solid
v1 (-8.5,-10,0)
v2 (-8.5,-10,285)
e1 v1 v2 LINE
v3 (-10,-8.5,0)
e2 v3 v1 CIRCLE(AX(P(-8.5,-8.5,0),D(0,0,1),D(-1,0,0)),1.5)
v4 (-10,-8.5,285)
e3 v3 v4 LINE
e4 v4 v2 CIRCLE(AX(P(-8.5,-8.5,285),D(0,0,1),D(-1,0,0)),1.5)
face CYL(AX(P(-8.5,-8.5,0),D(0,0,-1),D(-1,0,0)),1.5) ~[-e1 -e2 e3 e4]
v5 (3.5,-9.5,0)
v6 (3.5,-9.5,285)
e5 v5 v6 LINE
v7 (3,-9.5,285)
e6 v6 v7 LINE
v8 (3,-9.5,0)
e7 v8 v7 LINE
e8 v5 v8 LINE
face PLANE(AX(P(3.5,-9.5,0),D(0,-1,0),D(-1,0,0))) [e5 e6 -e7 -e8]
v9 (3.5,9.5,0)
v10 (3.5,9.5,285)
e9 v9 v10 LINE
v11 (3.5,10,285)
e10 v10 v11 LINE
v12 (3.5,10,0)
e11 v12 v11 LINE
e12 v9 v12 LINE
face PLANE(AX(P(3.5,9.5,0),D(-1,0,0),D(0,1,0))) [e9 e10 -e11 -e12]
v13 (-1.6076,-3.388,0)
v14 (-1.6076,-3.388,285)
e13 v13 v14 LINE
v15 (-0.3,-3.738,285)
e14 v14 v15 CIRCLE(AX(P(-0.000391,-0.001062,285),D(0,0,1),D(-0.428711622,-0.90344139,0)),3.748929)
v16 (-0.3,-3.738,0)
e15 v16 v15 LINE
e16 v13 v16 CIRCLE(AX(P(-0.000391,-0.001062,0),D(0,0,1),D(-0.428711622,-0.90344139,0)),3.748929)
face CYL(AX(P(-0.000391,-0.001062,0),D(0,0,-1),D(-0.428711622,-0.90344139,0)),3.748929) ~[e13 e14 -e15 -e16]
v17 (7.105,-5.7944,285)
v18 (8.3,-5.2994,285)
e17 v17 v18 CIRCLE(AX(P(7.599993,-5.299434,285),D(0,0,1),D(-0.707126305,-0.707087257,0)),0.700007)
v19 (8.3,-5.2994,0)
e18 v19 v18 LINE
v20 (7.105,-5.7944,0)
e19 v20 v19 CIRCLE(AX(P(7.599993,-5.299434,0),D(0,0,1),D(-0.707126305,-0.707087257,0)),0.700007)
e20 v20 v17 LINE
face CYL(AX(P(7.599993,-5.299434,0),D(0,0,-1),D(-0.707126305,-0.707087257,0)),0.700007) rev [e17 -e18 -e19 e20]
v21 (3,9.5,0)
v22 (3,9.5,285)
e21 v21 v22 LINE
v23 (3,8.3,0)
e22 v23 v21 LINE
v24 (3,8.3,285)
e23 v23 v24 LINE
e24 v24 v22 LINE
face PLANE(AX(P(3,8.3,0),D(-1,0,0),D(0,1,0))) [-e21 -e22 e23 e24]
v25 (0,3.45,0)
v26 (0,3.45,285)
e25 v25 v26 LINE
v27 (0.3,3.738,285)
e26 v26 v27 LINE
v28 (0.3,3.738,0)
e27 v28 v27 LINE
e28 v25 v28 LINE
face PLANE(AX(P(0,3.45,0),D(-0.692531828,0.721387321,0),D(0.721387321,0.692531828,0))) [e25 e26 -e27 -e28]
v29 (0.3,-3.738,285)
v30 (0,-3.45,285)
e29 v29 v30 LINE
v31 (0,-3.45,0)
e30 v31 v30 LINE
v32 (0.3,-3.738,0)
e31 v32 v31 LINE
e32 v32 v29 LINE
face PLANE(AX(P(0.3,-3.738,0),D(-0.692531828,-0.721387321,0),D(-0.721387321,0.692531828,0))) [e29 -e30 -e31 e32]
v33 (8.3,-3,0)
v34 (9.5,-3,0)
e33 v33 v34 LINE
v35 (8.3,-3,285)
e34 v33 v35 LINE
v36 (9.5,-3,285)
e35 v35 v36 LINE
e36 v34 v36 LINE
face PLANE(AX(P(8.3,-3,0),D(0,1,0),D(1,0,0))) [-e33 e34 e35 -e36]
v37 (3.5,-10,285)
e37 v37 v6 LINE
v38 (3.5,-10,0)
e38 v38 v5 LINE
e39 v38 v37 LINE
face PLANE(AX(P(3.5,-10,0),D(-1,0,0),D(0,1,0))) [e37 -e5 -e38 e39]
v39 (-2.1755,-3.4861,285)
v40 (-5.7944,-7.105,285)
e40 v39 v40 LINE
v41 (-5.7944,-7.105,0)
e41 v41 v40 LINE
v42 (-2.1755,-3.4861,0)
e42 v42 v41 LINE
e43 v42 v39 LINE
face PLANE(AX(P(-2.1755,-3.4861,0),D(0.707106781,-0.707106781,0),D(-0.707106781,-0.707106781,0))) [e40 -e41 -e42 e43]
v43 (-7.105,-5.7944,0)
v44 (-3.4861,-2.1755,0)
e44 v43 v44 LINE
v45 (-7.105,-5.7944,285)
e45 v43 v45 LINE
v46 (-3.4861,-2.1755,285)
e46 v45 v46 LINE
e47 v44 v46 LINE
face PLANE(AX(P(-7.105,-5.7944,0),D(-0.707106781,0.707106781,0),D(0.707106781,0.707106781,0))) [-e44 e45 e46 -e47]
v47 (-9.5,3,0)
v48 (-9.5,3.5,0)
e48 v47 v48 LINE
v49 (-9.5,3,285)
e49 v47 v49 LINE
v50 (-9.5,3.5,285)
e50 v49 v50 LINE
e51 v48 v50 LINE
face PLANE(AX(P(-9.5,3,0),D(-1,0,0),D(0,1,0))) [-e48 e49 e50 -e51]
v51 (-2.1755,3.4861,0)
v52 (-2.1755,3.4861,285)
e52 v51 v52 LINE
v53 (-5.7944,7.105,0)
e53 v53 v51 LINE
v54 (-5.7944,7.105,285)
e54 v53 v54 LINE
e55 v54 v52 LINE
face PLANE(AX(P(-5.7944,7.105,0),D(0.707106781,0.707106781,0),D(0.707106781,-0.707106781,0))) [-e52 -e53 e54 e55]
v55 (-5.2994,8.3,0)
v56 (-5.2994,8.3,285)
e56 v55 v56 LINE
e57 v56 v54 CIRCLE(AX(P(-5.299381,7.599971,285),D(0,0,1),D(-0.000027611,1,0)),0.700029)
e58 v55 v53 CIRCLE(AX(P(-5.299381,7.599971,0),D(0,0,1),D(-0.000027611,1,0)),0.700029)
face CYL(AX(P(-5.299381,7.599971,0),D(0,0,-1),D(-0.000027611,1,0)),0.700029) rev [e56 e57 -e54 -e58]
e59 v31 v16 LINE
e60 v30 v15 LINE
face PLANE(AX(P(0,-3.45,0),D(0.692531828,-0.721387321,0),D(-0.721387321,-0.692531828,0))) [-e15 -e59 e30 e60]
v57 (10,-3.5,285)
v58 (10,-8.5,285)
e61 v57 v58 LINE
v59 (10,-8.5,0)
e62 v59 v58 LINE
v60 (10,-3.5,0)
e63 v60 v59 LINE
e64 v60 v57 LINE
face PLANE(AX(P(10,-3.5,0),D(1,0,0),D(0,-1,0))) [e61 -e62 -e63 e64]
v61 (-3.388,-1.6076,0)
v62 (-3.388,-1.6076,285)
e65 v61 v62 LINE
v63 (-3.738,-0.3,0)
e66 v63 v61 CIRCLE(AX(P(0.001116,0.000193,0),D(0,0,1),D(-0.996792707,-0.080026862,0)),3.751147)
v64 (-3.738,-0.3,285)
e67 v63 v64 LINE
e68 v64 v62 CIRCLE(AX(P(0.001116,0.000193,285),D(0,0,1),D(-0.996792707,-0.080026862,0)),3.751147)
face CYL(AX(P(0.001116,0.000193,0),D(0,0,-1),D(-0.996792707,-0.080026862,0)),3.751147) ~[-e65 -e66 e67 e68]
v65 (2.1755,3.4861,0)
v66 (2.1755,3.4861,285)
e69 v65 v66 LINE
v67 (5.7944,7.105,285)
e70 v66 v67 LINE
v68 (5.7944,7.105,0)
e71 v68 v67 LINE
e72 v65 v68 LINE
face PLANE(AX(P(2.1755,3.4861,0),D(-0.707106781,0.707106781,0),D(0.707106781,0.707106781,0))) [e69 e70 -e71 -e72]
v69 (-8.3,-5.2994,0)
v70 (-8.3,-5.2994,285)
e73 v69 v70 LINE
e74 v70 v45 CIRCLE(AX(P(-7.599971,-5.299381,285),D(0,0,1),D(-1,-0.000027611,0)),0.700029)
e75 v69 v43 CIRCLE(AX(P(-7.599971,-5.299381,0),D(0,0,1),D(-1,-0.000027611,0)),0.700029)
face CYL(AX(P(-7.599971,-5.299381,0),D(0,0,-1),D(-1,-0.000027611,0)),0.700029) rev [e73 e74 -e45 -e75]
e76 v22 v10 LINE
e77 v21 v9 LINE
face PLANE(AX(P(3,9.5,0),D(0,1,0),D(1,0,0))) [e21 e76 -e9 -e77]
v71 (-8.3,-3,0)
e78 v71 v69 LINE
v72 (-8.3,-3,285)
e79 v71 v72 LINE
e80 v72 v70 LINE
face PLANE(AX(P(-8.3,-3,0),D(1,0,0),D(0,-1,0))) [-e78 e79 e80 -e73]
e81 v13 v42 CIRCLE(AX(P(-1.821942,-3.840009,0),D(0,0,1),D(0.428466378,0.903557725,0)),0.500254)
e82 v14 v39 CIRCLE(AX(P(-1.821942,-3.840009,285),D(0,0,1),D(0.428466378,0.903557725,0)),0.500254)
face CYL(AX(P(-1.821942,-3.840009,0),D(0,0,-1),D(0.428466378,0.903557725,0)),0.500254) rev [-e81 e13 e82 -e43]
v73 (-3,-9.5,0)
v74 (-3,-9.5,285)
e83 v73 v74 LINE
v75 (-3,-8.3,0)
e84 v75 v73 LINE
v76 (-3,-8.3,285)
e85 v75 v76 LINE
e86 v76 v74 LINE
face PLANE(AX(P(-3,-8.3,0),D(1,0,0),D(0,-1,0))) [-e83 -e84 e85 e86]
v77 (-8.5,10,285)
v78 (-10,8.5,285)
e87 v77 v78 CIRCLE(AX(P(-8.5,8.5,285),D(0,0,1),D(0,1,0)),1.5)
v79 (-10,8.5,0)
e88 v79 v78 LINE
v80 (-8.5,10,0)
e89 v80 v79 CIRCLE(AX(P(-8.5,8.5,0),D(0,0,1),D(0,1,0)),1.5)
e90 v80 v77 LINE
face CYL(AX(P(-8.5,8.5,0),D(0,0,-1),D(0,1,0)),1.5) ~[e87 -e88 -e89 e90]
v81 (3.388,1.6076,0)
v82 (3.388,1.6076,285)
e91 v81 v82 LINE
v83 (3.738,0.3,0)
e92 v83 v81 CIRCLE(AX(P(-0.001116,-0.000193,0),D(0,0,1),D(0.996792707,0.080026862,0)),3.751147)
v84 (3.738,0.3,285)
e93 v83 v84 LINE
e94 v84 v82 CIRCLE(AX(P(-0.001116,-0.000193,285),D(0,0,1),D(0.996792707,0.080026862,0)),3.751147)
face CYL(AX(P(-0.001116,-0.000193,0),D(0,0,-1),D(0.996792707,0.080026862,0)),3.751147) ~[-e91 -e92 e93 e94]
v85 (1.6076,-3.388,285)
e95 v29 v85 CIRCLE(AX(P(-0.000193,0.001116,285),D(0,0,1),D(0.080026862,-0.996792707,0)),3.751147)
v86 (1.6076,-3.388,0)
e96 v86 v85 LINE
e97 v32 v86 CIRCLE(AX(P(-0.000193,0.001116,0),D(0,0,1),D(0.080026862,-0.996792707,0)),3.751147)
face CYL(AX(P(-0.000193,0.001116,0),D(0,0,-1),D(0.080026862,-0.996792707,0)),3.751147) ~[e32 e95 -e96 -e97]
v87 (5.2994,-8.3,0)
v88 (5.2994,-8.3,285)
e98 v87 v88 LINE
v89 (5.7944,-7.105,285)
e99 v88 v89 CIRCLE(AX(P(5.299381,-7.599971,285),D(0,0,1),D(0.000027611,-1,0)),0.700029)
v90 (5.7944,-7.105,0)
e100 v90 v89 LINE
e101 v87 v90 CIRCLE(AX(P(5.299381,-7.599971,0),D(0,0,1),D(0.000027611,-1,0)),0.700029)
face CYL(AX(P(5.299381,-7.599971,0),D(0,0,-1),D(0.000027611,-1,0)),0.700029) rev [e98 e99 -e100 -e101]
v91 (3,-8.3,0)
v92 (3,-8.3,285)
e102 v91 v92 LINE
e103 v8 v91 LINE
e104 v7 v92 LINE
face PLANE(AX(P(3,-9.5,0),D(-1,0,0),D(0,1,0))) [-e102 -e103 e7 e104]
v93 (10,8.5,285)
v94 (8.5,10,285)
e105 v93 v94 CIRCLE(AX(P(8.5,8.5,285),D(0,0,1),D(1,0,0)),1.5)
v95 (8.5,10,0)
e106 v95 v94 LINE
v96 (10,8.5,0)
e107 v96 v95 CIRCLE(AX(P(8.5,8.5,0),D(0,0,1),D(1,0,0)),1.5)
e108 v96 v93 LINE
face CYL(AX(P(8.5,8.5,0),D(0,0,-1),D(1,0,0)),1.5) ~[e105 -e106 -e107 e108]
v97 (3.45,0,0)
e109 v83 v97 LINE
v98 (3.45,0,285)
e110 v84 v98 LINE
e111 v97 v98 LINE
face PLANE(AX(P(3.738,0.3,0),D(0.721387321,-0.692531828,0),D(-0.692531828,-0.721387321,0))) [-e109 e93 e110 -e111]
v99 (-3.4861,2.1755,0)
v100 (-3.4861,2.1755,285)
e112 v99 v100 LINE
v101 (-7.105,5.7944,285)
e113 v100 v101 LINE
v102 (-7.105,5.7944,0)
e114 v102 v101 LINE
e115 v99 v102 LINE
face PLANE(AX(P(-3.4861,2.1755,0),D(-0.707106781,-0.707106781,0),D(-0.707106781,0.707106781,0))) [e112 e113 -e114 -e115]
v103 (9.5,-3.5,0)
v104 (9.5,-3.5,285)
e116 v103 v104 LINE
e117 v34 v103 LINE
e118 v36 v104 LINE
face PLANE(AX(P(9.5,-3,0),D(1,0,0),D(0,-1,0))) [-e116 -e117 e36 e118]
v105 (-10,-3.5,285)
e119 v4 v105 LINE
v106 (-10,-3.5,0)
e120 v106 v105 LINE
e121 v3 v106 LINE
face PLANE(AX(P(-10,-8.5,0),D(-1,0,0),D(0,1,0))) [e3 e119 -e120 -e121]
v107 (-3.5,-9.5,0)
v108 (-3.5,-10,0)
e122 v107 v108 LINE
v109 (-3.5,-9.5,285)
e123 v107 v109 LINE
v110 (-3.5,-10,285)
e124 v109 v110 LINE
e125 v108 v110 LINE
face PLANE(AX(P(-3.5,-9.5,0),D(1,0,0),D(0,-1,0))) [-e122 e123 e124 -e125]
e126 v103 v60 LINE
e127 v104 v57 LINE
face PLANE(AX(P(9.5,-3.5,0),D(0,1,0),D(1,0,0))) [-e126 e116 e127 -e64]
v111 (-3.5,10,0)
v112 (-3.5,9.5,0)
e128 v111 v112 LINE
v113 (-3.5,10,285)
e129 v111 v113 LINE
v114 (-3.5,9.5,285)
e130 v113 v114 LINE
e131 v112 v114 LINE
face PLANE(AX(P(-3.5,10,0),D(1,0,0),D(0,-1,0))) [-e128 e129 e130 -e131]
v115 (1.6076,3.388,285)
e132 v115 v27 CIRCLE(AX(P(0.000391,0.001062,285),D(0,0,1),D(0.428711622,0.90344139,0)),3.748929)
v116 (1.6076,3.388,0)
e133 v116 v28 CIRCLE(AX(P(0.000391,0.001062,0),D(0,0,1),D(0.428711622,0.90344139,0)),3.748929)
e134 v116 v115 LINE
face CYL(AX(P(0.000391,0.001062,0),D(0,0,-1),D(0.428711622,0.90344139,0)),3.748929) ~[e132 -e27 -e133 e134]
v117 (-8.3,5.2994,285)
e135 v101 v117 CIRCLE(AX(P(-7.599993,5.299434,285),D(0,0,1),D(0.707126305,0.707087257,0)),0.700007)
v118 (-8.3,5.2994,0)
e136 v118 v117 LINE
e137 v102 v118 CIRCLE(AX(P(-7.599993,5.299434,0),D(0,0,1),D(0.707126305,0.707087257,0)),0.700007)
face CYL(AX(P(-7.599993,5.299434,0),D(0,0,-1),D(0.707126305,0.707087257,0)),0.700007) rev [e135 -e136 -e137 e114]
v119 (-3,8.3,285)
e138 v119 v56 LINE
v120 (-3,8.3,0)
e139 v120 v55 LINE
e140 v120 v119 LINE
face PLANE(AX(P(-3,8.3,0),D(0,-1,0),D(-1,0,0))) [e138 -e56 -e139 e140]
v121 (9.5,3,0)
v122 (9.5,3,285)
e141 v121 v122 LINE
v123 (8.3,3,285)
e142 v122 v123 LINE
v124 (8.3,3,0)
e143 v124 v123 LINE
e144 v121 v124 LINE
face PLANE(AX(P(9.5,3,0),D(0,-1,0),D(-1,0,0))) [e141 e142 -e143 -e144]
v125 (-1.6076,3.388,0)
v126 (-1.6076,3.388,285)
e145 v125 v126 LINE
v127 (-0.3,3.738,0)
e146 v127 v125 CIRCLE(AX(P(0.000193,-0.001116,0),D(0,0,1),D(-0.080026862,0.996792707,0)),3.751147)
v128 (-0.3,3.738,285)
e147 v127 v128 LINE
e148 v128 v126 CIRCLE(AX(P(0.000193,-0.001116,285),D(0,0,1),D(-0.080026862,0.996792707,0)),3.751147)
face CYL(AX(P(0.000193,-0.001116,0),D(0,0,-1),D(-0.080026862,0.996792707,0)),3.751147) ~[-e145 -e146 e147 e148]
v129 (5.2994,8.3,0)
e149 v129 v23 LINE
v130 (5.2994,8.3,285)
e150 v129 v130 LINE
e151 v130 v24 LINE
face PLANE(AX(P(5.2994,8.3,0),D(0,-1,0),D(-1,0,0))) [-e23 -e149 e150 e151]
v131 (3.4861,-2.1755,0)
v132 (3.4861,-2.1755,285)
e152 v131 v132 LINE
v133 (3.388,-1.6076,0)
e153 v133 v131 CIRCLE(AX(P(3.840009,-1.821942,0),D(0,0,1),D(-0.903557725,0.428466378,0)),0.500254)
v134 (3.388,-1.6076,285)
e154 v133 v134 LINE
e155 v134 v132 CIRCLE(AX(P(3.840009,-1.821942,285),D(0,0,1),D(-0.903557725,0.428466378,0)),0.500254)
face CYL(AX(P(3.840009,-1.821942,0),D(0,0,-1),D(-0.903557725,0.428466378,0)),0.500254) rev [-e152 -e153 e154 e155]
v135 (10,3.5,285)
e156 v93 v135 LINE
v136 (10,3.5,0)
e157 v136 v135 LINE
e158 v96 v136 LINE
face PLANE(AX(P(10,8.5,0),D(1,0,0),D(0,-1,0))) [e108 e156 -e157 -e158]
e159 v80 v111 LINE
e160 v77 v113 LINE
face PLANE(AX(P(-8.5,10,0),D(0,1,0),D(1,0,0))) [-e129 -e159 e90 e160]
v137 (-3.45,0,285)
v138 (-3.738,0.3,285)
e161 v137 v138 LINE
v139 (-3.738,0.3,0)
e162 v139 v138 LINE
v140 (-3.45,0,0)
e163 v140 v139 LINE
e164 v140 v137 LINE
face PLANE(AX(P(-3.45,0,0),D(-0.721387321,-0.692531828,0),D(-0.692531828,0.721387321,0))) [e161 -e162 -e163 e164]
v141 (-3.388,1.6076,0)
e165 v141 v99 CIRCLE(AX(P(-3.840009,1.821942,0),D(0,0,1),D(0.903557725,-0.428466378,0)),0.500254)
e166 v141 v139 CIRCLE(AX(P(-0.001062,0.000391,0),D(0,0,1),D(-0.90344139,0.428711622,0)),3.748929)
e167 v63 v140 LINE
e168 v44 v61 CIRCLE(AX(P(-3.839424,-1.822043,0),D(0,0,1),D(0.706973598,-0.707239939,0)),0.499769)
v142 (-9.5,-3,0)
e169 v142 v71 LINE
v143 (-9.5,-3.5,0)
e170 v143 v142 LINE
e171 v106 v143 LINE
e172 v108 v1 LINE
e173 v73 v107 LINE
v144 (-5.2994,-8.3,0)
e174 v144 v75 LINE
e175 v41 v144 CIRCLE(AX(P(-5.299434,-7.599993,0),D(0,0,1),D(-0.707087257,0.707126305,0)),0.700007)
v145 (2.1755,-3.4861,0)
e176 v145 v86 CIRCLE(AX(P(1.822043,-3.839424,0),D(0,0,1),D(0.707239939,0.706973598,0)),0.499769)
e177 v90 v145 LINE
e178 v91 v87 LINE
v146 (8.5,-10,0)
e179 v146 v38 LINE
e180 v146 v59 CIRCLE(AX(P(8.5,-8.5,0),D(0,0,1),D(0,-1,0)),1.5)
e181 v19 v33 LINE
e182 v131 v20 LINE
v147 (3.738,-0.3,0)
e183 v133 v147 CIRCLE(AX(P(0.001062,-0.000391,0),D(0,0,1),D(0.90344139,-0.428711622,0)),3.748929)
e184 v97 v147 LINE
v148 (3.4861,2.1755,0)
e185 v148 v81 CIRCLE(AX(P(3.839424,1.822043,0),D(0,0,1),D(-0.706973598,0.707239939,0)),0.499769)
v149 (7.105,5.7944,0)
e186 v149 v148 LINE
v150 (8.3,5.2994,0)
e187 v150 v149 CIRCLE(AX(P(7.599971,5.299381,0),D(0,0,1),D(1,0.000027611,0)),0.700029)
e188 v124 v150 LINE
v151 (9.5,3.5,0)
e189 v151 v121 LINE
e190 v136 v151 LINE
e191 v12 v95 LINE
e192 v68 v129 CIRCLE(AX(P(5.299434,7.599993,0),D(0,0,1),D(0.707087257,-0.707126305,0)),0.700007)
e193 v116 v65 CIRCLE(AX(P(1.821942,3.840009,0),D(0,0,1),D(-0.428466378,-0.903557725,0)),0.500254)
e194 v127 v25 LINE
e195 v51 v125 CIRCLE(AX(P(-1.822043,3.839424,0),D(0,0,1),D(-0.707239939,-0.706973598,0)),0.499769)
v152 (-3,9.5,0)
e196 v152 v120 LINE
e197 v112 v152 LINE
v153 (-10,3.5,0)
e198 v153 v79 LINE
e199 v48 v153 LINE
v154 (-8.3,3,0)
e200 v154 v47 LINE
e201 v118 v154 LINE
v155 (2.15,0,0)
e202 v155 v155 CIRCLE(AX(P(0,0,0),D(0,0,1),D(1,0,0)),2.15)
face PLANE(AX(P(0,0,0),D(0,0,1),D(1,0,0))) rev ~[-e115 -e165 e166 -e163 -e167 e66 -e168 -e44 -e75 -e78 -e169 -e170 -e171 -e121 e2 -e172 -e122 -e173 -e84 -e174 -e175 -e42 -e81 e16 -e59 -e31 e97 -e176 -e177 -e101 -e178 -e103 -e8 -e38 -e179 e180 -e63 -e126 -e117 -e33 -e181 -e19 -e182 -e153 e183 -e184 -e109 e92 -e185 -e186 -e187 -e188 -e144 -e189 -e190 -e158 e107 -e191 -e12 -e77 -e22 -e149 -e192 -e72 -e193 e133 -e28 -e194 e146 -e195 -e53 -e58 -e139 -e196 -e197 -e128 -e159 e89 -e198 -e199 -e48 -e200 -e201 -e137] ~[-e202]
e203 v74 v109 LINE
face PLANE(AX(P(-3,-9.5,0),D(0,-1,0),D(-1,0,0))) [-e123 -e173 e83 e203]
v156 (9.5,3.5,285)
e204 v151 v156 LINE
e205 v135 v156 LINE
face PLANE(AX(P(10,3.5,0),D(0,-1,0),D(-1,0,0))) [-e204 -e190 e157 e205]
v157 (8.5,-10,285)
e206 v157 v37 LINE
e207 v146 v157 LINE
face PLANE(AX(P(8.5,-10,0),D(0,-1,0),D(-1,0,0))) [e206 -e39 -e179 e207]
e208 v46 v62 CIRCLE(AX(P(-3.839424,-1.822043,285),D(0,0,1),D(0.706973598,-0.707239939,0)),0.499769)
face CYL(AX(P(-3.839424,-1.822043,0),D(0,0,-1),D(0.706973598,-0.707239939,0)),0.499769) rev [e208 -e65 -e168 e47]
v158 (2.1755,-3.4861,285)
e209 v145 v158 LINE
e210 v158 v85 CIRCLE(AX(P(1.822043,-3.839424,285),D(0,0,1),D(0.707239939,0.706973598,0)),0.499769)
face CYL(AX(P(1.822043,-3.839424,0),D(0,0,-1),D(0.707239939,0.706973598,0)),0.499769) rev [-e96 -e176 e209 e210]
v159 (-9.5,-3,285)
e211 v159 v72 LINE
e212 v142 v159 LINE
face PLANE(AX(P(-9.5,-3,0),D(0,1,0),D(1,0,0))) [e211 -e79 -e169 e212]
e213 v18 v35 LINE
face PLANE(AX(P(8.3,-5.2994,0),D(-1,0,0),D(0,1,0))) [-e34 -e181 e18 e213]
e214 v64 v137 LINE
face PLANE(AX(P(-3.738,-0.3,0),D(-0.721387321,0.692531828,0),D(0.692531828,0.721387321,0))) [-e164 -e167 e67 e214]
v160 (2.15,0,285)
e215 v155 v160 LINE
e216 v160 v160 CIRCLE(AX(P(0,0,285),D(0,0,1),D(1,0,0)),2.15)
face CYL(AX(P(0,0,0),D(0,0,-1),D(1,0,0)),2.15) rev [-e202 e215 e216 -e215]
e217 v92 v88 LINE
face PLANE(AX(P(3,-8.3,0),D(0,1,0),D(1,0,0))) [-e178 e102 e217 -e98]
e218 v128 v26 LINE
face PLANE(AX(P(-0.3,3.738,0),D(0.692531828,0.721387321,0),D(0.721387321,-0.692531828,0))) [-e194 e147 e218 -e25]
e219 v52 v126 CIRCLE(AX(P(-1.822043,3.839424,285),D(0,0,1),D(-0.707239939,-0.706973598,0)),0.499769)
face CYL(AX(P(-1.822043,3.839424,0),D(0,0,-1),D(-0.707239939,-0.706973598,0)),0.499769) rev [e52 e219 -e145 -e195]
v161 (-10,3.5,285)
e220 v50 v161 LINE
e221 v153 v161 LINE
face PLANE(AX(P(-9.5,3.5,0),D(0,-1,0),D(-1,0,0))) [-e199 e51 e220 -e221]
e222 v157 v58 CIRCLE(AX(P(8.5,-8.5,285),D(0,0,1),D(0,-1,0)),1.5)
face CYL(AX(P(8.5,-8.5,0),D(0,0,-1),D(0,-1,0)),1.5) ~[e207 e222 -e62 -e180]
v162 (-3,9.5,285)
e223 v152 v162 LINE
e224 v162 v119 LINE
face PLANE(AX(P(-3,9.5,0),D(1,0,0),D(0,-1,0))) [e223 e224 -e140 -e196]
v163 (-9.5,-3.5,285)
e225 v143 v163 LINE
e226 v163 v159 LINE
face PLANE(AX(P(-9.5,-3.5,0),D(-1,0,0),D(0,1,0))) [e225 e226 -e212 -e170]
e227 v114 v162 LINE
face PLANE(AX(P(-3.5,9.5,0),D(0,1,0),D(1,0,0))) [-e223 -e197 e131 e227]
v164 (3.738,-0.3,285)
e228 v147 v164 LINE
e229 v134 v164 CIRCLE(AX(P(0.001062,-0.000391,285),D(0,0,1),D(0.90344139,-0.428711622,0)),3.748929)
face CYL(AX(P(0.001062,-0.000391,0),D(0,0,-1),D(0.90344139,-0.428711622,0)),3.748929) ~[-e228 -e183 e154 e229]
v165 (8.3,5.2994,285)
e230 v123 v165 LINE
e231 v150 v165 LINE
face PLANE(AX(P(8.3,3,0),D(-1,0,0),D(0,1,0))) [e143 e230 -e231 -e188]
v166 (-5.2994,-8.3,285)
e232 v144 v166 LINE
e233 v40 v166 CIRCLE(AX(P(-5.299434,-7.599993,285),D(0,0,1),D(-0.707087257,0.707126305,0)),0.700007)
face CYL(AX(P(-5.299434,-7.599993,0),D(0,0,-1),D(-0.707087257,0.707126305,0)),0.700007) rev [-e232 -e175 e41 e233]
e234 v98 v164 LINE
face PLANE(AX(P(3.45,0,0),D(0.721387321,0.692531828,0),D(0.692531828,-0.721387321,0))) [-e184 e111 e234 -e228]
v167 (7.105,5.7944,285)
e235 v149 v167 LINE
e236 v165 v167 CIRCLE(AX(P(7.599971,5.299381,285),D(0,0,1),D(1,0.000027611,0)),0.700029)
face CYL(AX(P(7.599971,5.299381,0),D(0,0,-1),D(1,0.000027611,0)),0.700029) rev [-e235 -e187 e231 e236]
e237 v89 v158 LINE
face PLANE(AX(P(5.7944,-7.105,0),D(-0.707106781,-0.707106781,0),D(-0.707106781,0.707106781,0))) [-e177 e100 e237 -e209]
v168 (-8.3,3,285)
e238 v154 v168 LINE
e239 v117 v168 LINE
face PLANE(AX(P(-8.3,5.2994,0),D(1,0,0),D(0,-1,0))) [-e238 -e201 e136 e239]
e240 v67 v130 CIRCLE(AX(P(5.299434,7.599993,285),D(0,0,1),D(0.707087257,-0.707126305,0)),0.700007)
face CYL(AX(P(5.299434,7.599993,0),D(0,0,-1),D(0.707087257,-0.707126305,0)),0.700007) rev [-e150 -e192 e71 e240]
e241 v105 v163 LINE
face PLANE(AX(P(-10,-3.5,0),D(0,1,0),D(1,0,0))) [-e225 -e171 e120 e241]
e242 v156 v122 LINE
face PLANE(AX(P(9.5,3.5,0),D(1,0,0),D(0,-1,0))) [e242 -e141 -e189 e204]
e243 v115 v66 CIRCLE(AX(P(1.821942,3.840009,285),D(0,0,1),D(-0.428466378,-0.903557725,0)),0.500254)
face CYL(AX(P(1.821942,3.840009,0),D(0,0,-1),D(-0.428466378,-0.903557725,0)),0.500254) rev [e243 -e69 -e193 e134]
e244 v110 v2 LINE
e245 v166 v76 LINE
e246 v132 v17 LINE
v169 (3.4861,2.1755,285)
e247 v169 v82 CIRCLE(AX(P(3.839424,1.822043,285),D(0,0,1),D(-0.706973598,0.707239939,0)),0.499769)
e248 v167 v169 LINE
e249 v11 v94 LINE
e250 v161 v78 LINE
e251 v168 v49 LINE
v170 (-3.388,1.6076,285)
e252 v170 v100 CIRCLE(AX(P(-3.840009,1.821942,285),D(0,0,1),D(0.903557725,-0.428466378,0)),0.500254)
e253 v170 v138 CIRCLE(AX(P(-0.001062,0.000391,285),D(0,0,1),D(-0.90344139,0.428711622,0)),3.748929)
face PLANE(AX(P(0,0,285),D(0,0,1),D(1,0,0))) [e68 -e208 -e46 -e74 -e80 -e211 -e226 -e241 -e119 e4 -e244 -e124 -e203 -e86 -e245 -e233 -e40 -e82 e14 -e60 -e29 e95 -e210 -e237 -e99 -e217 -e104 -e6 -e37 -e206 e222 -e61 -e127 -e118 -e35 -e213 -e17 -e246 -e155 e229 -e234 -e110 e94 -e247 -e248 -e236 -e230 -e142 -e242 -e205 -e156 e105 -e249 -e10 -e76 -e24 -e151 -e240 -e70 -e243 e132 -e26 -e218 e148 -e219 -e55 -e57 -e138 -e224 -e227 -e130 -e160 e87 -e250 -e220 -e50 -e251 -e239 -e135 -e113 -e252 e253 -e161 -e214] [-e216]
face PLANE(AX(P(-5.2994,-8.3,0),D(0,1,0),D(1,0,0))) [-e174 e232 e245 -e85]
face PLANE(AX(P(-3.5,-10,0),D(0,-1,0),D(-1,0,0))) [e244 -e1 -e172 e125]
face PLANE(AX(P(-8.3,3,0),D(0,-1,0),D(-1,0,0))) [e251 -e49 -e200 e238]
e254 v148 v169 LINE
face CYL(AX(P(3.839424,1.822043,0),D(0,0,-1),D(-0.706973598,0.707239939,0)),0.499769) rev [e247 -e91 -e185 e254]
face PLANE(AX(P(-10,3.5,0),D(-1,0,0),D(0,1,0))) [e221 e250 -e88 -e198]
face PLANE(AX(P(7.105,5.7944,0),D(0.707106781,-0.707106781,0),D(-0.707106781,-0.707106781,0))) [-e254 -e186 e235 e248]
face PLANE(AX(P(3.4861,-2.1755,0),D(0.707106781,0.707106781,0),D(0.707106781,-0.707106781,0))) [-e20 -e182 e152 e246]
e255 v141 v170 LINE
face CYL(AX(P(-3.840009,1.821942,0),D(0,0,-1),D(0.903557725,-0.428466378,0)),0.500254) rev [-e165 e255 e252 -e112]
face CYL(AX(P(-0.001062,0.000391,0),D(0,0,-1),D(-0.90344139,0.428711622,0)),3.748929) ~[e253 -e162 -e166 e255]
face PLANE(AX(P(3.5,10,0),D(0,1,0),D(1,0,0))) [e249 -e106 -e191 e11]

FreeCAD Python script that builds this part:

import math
import FreeCAD as App
import Part
import Sketcher
Q = App.Units.Quantity

doc = App.newDocument("Part")
params = doc.addObject("Spreadsheet::Sheet", "Params")
for row, (alias, value) in enumerate([
    ("sketch1_diameter", "4.3 mm"),
    ("sketch1_radius", "0.7 mm"),
    ("sketch1_radius2", "0.5 mm"),
    ("sketch1_radius3", "0.5 mm"),
    ("sketch1_radius4", "0.7 mm"),
    ("pad1_length", "285 mm"),
], start=1):
    params.set(f"A{row}", alias)
    params.set(f"B{row}", "=" + value)
    params.setAlias(f"B{row}", alias)

body = doc.addObject("PartDesign::Body", "Body")

sketch1 = body.newObject("Sketcher::SketchObject", "Sketch")
sketch1.AttachmentSupport = (doc.getObject("XY_Plane"), [""])
sketch1.MapMode = "FlatFace"
sketch1.addGeometry([
    Part.LineSegment(App.Vector(-3.5, -10, 0), App.Vector(-3.5, -9.5, 0)),
    Part.LineSegment(App.Vector(-3.5, -9.5, 0), App.Vector(-3, -9.5, 0)),
    Part.LineSegment(App.Vector(-3, -9.5, 0), App.Vector(-3, -8.3, 0)),
    Part.LineSegment(App.Vector(-3, -8.3, 0), App.Vector(-5.2994, -8.3, 0)),
    Part.ArcOfCircle(Part.Circle(App.Vector(-5.2994, -7.6, 0), App.Vector(0, 0, 1), 0.700036), math.radians(135), math.radians(270)),
    Part.LineSegment(App.Vector(-5.7944, -7.105, 0), App.Vector(-2.1755, -3.4861, 0)),
    Part.ArcOfCircle(Part.Circle(App.Vector(-1.8219, -3.8397, 0), App.Vector(0, 0, 1), 0.499957), math.radians(64.618937), math.radians(135)),
    Part.ArcOfCircle(Part.Circle(App.Vector(-0.000391, -0.001062, 0), App.Vector(0, 0, 1), 3.748929), math.radians(-115.385824), math.radians(-94.583891)),
    Part.LineSegment(App.Vector(-0.3, -3.738, 0), App.Vector(0, -3.45, 0)),
    Part.LineSegment(App.Vector(0, -3.45, 0), App.Vector(0.3, -3.738, 0)),
    Part.ArcOfCircle(Part.Circle(App.Vector(-0.000193, 0.001116, 0), App.Vector(0, 0, 1), 3.751147), math.radians(-85.40989), math.radians(-64.620395)),
    Part.ArcOfCircle(Part.Circle(App.Vector(1.8219, -3.8397, 0), App.Vector(0, 0, 1), 0.500066), math.radians(45), math.radians(115.381063)),
    Part.LineSegment(App.Vector(2.1755, -3.4861, 0), App.Vector(5.7944, -7.105, 0)),
    Part.ArcOfCircle(Part.Circle(App.Vector(5.2994, -7.6, 0), App.Vector(0, 0, 1), 0.7), math.radians(-90), math.radians(45)),
    Part.LineSegment(App.Vector(5.2994, -8.3, 0), App.Vector(3, -8.3, 0)),
    Part.LineSegment(App.Vector(3, -8.3, 0), App.Vector(3, -9.5, 0)),
    Part.LineSegment(App.Vector(3, -9.5, 0), App.Vector(3.5, -9.5, 0)),
    Part.LineSegment(App.Vector(3.5, -9.5, 0), App.Vector(3.5, -10, 0)),
    Part.LineSegment(App.Vector(3.5, -10, 0), App.Vector(8.5, -10, 0)),
    Part.ArcOfCircle(Part.Circle(App.Vector(8.5, -8.5, 0), App.Vector(0, 0, 1), 1.5), math.radians(-90), math.radians(0)),
    Part.LineSegment(App.Vector(10, -8.5, 0), App.Vector(10, -3.5, 0)),
    Part.LineSegment(App.Vector(10, -3.5, 0), App.Vector(9.5, -3.5, 0)),
    Part.LineSegment(App.Vector(9.5, -3.5, 0), App.Vector(9.5, -3, 0)),
    Part.LineSegment(App.Vector(9.5, -3, 0), App.Vector(8.3, -3, 0)),
    Part.LineSegment(App.Vector(8.3, -3, 0), App.Vector(8.3, -5.2994, 0)),
    Part.ArcOfCircle(Part.Circle(App.Vector(7.6, -5.2994, 0), App.Vector(0, 0, 1), 0.700036), math.radians(-135), math.radians(0)),
    Part.LineSegment(App.Vector(7.105, -5.7944, 0), App.Vector(3.4861, -2.1755, 0)),
    Part.ArcOfCircle(Part.Circle(App.Vector(3.8397, -1.8219, 0), App.Vector(0, 0, 1), 0.499957), math.radians(154.618937), math.radians(225)),
    Part.ArcOfCircle(Part.Circle(App.Vector(0.001062, -0.000391, 0), App.Vector(0, 0, 1), 3.748929), math.radians(-25.385824), math.radians(-4.583891)),
    Part.LineSegment(App.Vector(3.738, -0.3, 0), App.Vector(3.45, 0, 0)),
    Part.LineSegment(App.Vector(3.45, 0, 0), App.Vector(3.738, 0.3, 0)),
    Part.ArcOfCircle(Part.Circle(App.Vector(-0.001116, -0.000193, 0), App.Vector(0, 0, 1), 3.751147), math.radians(4.59011), math.radians(25.379605)),
    Part.ArcOfCircle(Part.Circle(App.Vector(3.8397, 1.8219, 0), App.Vector(0, 0, 1), 0.500066), math.radians(135), math.radians(205.381063)),
    Part.LineSegment(App.Vector(3.4861, 2.1755, 0), App.Vector(7.105, 5.7944, 0)),
    Part.ArcOfCircle(Part.Circle(App.Vector(7.6, 5.2994, 0), App.Vector(0, 0, 1), 0.7), math.radians(0), math.radians(135)),
    Part.LineSegment(App.Vector(8.3, 5.2994, 0), App.Vector(8.3, 3, 0)),
    Part.LineSegment(App.Vector(8.3, 3, 0), App.Vector(9.5, 3, 0)),
    Part.LineSegment(App.Vector(9.5, 3, 0), App.Vector(9.5, 3.5, 0)),
    Part.LineSegment(App.Vector(9.5, 3.5, 0), App.Vector(10, 3.5, 0)),
    Part.LineSegment(App.Vector(10, 3.5, 0), App.Vector(10, 8.5, 0)),
    Part.ArcOfCircle(Part.Circle(App.Vector(8.5, 8.5, 0), App.Vector(0, 0, 1), 1.5), math.radians(0), math.radians(90)),
    Part.LineSegment(App.Vector(8.5, 10, 0), App.Vector(3.5, 10, 0)),
    Part.LineSegment(App.Vector(3.5, 10, 0), App.Vector(3.5, 9.5, 0)),
    Part.LineSegment(App.Vector(3.5, 9.5, 0), App.Vector(3, 9.5, 0)),
    Part.LineSegment(App.Vector(3, 9.5, 0), App.Vector(3, 8.3, 0)),
    Part.LineSegment(App.Vector(3, 8.3, 0), App.Vector(5.2994, 8.3, 0)),
    Part.ArcOfCircle(Part.Circle(App.Vector(5.2994, 7.6, 0), App.Vector(0, 0, 1), 0.700036), math.radians(-45), math.radians(90)),
    Part.LineSegment(App.Vector(5.7944, 7.105, 0), App.Vector(2.1755, 3.4861, 0)),
    Part.ArcOfCircle(Part.Circle(App.Vector(1.8219, 3.8397, 0), App.Vector(0, 0, 1), 0.499957), math.radians(-115.381063), math.radians(-45)),
    Part.ArcOfCircle(Part.Circle(App.Vector(0.000391, 0.001062, 0), App.Vector(0, 0, 1), 3.748929), math.radians(64.614176), math.radians(85.416109)),
    Part.LineSegment(App.Vector(0.3, 3.738, 0), App.Vector(0, 3.45, 0)),
    Part.LineSegment(App.Vector(0, 3.45, 0), App.Vector(-0.3, 3.738, 0)),
    Part.ArcOfCircle(Part.Circle(App.Vector(0.000193, -0.001116, 0), App.Vector(0, 0, 1), 3.751147), math.radians(94.59011), math.radians(115.379605)),
    Part.ArcOfCircle(Part.Circle(App.Vector(-1.8219, 3.8397, 0), App.Vector(0, 0, 1), 0.500066), math.radians(-135), math.radians(-64.618937)),
    Part.LineSegment(App.Vector(-2.1755, 3.4861, 0), App.Vector(-5.7944, 7.105, 0)),
    Part.ArcOfCircle(Part.Circle(App.Vector(-5.2994, 7.6, 0), App.Vector(0, 0, 1), 0.7), math.radians(90), math.radians(225)),
    Part.LineSegment(App.Vector(-5.2994, 8.3, 0), App.Vector(-3, 8.3, 0)),
    Part.LineSegment(App.Vector(-3, 8.3, 0), App.Vector(-3, 9.5, 0)),
    Part.LineSegment(App.Vector(-3, 9.5, 0), App.Vector(-3.5, 9.5, 0)),
    Part.LineSegment(App.Vector(-3.5, 9.5, 0), App.Vector(-3.5, 10, 0)),
    Part.LineSegment(App.Vector(-3.5, 10, 0), App.Vector(-8.5, 10, 0)),
    Part.ArcOfCircle(Part.Circle(App.Vector(-8.5, 8.5, 0), App.Vector(0, 0, 1), 1.5), math.radians(90), math.radians(180)),
    Part.LineSegment(App.Vector(-10, 8.5, 0), App.Vector(-10, 3.5, 0)),
    Part.LineSegment(App.Vector(-10, 3.5, 0), App.Vector(-9.5, 3.5, 0)),
    Part.LineSegment(App.Vector(-9.5, 3.5, 0), App.Vector(-9.5, 3, 0)),
    Part.LineSegment(App.Vector(-9.5, 3, 0), App.Vector(-8.3, 3, 0)),
    Part.LineSegment(App.Vector(-8.3, 3, 0), App.Vector(-8.3, 5.2994, 0)),
    Part.ArcOfCircle(Part.Circle(App.Vector(-7.6, 5.2994, 0), App.Vector(0, 0, 1), 0.700036), math.radians(45), math.radians(180)),
    Part.LineSegment(App.Vector(-7.105, 5.7944, 0), App.Vector(-3.4861, 2.1755, 0)),
    Part.ArcOfCircle(Part.Circle(App.Vector(-3.8397, 1.8219, 0), App.Vector(0, 0, 1), 0.499957), math.radians(-25.381063), math.radians(45)),
    Part.ArcOfCircle(Part.Circle(App.Vector(-0.001062, 0.000391, 0), App.Vector(0, 0, 1), 3.748929), math.radians(154.614176), math.radians(175.416109)),
    Part.LineSegment(App.Vector(-3.738, 0.3, 0), App.Vector(-3.45, 0, 0)),
    Part.LineSegment(App.Vector(-3.45, 0, 0), App.Vector(-3.738, -0.3, 0)),
    Part.ArcOfCircle(Part.Circle(App.Vector(0.001116, 0.000193, 0), App.Vector(0, 0, 1), 3.751147), math.radians(-175.40989), math.radians(-154.620395)),
    Part.ArcOfCircle(Part.Circle(App.Vector(-3.8397, -1.8219, 0), App.Vector(0, 0, 1), 0.500066), math.radians(-45), math.radians(25.381063)),
    Part.LineSegment(App.Vector(-3.4861, -2.1755, 0), App.Vector(-7.105, -5.7944, 0)),
    Part.ArcOfCircle(Part.Circle(App.Vector(-7.6, -5.2994, 0), App.Vector(0, 0, 1), 0.7), math.radians(180), math.radians(315)),
    Part.LineSegment(App.Vector(-8.3, -5.2994, 0), App.Vector(-8.3, -3, 0)),
    Part.LineSegment(App.Vector(-8.3, -3, 0), App.Vector(-9.5, -3, 0)),
    Part.LineSegment(App.Vector(-9.5, -3, 0), App.Vector(-9.5, -3.5, 0)),
    Part.LineSegment(App.Vector(-9.5, -3.5, 0), App.Vector(-10, -3.5, 0)),
    Part.LineSegment(App.Vector(-10, -3.5, 0), App.Vector(-10, -8.5, 0)),
    Part.ArcOfCircle(Part.Circle(App.Vector(-8.5, -8.5, 0), App.Vector(0, 0, 1), 1.5), math.radians(180), math.radians(270)),
    Part.LineSegment(App.Vector(-8.5, -10, 0), App.Vector(-3.5, -10, 0)),
    Part.Circle(App.Vector(0, 0, 0), App.Vector(0, 0, 1), 2.15),
], False)
sketch1.addConstraint([
    Sketcher.Constraint("Coincident", 0, 2, 1, 1),
    Sketcher.Constraint("Coincident", 1, 2, 2, 1),
    Sketcher.Constraint("Coincident", 2, 2, 3, 1),
    Sketcher.Constraint("Coincident", 3, 2, 4, 2),
    Sketcher.Constraint("Coincident", 4, 1, 5, 1),
    Sketcher.Constraint("Coincident", 5, 2, 6, 2),
    Sketcher.Constraint("Coincident", 6, 1, 7, 1),
    Sketcher.Constraint("Coincident", 7, 2, 8, 1),
    Sketcher.Constraint("Coincident", 8, 2, 9, 1),
    Sketcher.Constraint("Coincident", 9, 2, 10, 1),
    Sketcher.Constraint("Coincident", 10, 2, 11, 2),
    Sketcher.Constraint("Coincident", 11, 1, 12, 1),
    Sketcher.Constraint("Coincident", 12, 2, 13, 2),
    Sketcher.Constraint("Coincident", 13, 1, 14, 1),
    Sketcher.Constraint("Coincident", 14, 2, 15, 1),
    Sketcher.Constraint("Coincident", 15, 2, 16, 1),
    Sketcher.Constraint("Coincident", 16, 2, 17, 1),
    Sketcher.Constraint("Coincident", 17, 2, 18, 1),
    Sketcher.Constraint("Coincident", 18, 2, 19, 1),
    Sketcher.Constraint("Coincident", 19, 2, 20, 1),
    Sketcher.Constraint("Coincident", 20, 2, 21, 1),
    Sketcher.Constraint("Coincident", 21, 2, 22, 1),
    Sketcher.Constraint("Coincident", 22, 2, 23, 1),
    Sketcher.Constraint("Coincident", 23, 2, 24, 1),
    Sketcher.Constraint("Coincident", 24, 2, 25, 2),
    Sketcher.Constraint("Coincident", 25, 1, 26, 1),
    Sketcher.Constraint("Coincident", 26, 2, 27, 2),
    Sketcher.Constraint("Coincident", 27, 1, 28, 1),
    Sketcher.Constraint("Coincident", 28, 2, 29, 1),
    Sketcher.Constraint("Coincident", 29, 2, 30, 1),
    Sketcher.Constraint("Coincident", 30, 2, 31, 1),
    Sketcher.Constraint("Coincident", 31, 2, 32, 2),
    Sketcher.Constraint("Coincident", 32, 1, 33, 1),
    Sketcher.Constraint("Coincident", 33, 2, 34, 2),
    Sketcher.Constraint("Coincident", 34, 1, 35, 1),
    Sketcher.Constraint("Coincident", 35, 2, 36, 1),
    Sketcher.Constraint("Coincident", 36, 2, 37, 1),
    Sketcher.Constraint("Coincident", 37, 2, 38, 1),
    Sketcher.Constraint("Coincident", 38, 2, 39, 1),
    Sketcher.Constraint("Coincident", 39, 2, 40, 1),
    Sketcher.Constraint("Coincident", 40, 2, 41, 1),
    Sketcher.Constraint("Coincident", 41, 2, 42, 1),
    Sketcher.Constraint("Coincident", 42, 2, 43, 1),
    Sketcher.Constraint("Coincident", 43, 2, 44, 1),
    Sketcher.Constraint("Coincident", 44, 2, 45, 1),
    Sketcher.Constraint("Coincident", 45, 2, 46, 2),
    Sketcher.Constraint("Coincident", 46, 1, 47, 1),
    Sketcher.Constraint("Coincident", 47, 2, 48, 2),
    Sketcher.Constraint("Coincident", 48, 1, 49, 1),
    Sketcher.Constraint("Coincident", 49, 2, 50, 1),
    Sketcher.Constraint("Coincident", 50, 2, 51, 1),
    Sketcher.Constraint("Coincident", 51, 2, 52, 1),
    Sketcher.Constraint("Coincident", 52, 2, 53, 2),
    Sketcher.Constraint("Coincident", 53, 1, 54, 1),
    Sketcher.Constraint("Coincident", 54, 2, 55, 2),
    Sketcher.Constraint("Coincident", 55, 1, 56, 1),
    Sketcher.Constraint("Coincident", 56, 2, 57, 1),
    Sketcher.Constraint("Coincident", 57, 2, 58, 1),
    Sketcher.Constraint("Coincident", 58, 2, 59, 1),
    Sketcher.Constraint("Coincident", 59, 2, 60, 1),
    Sketcher.Constraint("Coincident", 60, 2, 61, 1),
    Sketcher.Constraint("Coincident", 61, 2, 62, 1),
    Sketcher.Constraint("Coincident", 62, 2, 63, 1),
    Sketcher.Constraint("Coincident", 63, 2, 64, 1),
    Sketcher.Constraint("Coincident", 64, 2, 65, 1),
    Sketcher.Constraint("Coincident", 65, 2, 66, 1),
    Sketcher.Constraint("Coincident", 66, 2, 67, 2),
    Sketcher.Constraint("Coincident", 67, 1, 68, 1),
    Sketcher.Constraint("Coincident", 68, 2, 69, 2),
    Sketcher.Constraint("Coincident", 69, 1, 70, 1),
    Sketcher.Constraint("Coincident", 70, 2, 71, 1),
    Sketcher.Constraint("Coincident", 71, 2, 72, 1),
    Sketcher.Constraint("Coincident", 72, 2, 73, 1),
    Sketcher.Constraint("Coincident", 73, 2, 74, 2),
    Sketcher.Constraint("Coincident", 74, 1, 75, 1),
    Sketcher.Constraint("Coincident", 75, 2, 76, 2),
    Sketcher.Constraint("Coincident", 76, 1, 77, 1),
    Sketcher.Constraint("Coincident", 77, 2, 78, 1),
    Sketcher.Constraint("Coincident", 78, 2, 79, 1),
    Sketcher.Constraint("Coincident", 79, 2, 80, 1),
    Sketcher.Constraint("Coincident", 80, 2, 81, 1),
    Sketcher.Constraint("Coincident", 81, 2, 82, 1),
    Sketcher.Constraint("Coincident", 82, 2, 83, 1),
    Sketcher.Constraint("Coincident", 83, 2, 0, 1),
    Sketcher.Constraint("Vertical", 0),
    Sketcher.Constraint("Horizontal", 1),
    Sketcher.Constraint("Vertical", 2),
    Sketcher.Constraint("Horizontal", 3),
    Sketcher.Constraint("Horizontal", 14),
    Sketcher.Constraint("Vertical", 15),
    Sketcher.Constraint("Horizontal", 16),
    Sketcher.Constraint("Vertical", 17),
    Sketcher.Constraint("Horizontal", 18),
    Sketcher.Constraint("Vertical", 20),
    Sketcher.Constraint("Horizontal", 21),
    Sketcher.Constraint("Vertical", 22),
    Sketcher.Constraint("Horizontal", 23),
    Sketcher.Constraint("Vertical", 24),
    Sketcher.Constraint("Vertical", 35),
    Sketcher.Constraint("Horizontal", 36),
    Sketcher.Constraint("Vertical", 37),
    Sketcher.Constraint("Horizontal", 38),
    Sketcher.Constraint("Vertical", 39),
    Sketcher.Constraint("Horizontal", 41),
    Sketcher.Constraint("Vertical", 42),
    Sketcher.Constraint("Horizontal", 43),
    Sketcher.Constraint("Vertical", 44),
    Sketcher.Constraint("Horizontal", 45),
    Sketcher.Constraint("Horizontal", 56),
    Sketcher.Constraint("Vertical", 57),
    Sketcher.Constraint("Horizontal", 58),
    Sketcher.Constraint("Vertical", 59),
    Sketcher.Constraint("Horizontal", 60),
    Sketcher.Constraint("Vertical", 62),
    Sketcher.Constraint("Horizontal", 63),
    Sketcher.Constraint("Vertical", 64),
    Sketcher.Constraint("Horizontal", 65),
    Sketcher.Constraint("Vertical", 66),
    Sketcher.Constraint("Vertical", 77),
    Sketcher.Constraint("Horizontal", 78),
    Sketcher.Constraint("Vertical", 79),
    Sketcher.Constraint("Horizontal", 80),
    Sketcher.Constraint("Vertical", 81),
    Sketcher.Constraint("Horizontal", 83),
    Sketcher.Constraint("Coincident", 84, 3, -1, 1),
    Sketcher.Constraint("PointOnObject", 10, 3, -2),
    Sketcher.Constraint("PointOnObject", 31, 3, -1),
    Sketcher.Constraint("PointOnObject", 52, 3, -2),
    Sketcher.Constraint("PointOnObject", 73, 3, -1),
    Sketcher.Constraint("PointOnObject", 8, 2, -2),
    Sketcher.Constraint("PointOnObject", 29, 2, -1),
    Sketcher.Constraint("PointOnObject", 50, 2, -2),
    Sketcher.Constraint("PointOnObject", 71, 2, -1),
    Sketcher.Constraint("Diameter", 84, Q("4.3 mm")),
    Sketcher.Constraint("Radius", 4, Q("0.7 mm")),
    Sketcher.Constraint("Radius", 6, Q("0.5 mm")),
    Sketcher.Constraint("Radius", 11, Q("0.5 mm")),
    Sketcher.Constraint("Radius", 13, Q("0.7 mm")),
    Sketcher.Constraint("Radius", 19, Q("1.5 mm")),
    Sketcher.Constraint("Radius", 25, Q("0.7 mm")),
    Sketcher.Constraint("Radius", 27, Q("0.5 mm")),
    Sketcher.Constraint("Radius", 32, Q("0.5 mm")),
    Sketcher.Constraint("Radius", 34, Q("0.7 mm")),
    Sketcher.Constraint("Radius", 40, Q("1.5 mm")),
    Sketcher.Constraint("Radius", 46, Q("0.7 mm")),
    Sketcher.Constraint("Radius", 48, Q("0.5 mm")),
    Sketcher.Constraint("Radius", 53, Q("0.5 mm")),
    Sketcher.Constraint("Radius", 55, Q("0.7 mm")),
    Sketcher.Constraint("Radius", 61, Q("1.5 mm")),
    Sketcher.Constraint("Radius", 67, Q("0.7 mm")),
    Sketcher.Constraint("Radius", 69, Q("0.5 mm")),
    Sketcher.Constraint("Radius", 74, Q("0.5 mm")),
    Sketcher.Constraint("Radius", 76, Q("0.7 mm")),
    Sketcher.Constraint("Radius", 82, Q("1.5 mm")),
    Sketcher.Constraint("DistanceX", 18, 1, 18, 2, Q("5 mm")),
    Sketcher.Constraint("DistanceX", 41, 2, 41, 1, Q("5 mm")),
    Sketcher.Constraint("DistanceX", 60, 2, 60, 1, Q("5 mm")),
    Sketcher.Constraint("DistanceX", 83, 1, 83, 2, Q("5 mm")),
    Sketcher.Constraint("DistanceY", 20, 1, 20, 2, Q("5 mm")),
    Sketcher.Constraint("DistanceY", 39, 1, 39, 2, Q("5 mm")),
    Sketcher.Constraint("DistanceY", 62, 2, 62, 1, Q("5 mm")),
    Sketcher.Constraint("DistanceY", 81, 2, 81, 1, Q("5 mm")),
    Sketcher.Constraint("DistanceX", 1, 1, 1, 2, Q("0.5 mm")),
    Sketcher.Constraint("DistanceX", 16, 1, 16, 2, Q("0.5 mm")),
    Sketcher.Constraint("DistanceX", 21, 2, 21, 1, Q("0.5 mm")),
    Sketcher.Constraint("DistanceX", 23, 2, 23, 1, Q("1.2 mm")),
    Sketcher.Constraint("DistanceX", 36, 1, 36, 2, Q("1.2 mm")),
    Sketcher.Constraint("DistanceX", 38, 1, 38, 2, Q("0.5 mm")),
    Sketcher.Constraint("DistanceX", 43, 2, 43, 1, Q("0.5 mm")),
    Sketcher.Constraint("DistanceX", 58, 2, 58, 1, Q("0.5 mm")),
    Sketcher.Constraint("DistanceX", 63, 1, 63, 2, Q("0.5 mm")),
    Sketcher.Constraint("DistanceX", 65, 1, 65, 2, Q("1.2 mm")),
    Sketcher.Constraint("DistanceX", 78, 2, 78, 1, Q("1.2 mm")),
    Sketcher.Constraint("DistanceX", 80, 2, 80, 1, Q("0.5 mm")),
    Sketcher.Constraint("DistanceY", 0, 1, 0, 2, Q("0.5 mm")),
    Sketcher.Constraint("DistanceY", 2, 1, 2, 2, Q("1.2 mm")),
    Sketcher.Constraint("DistanceY", 15, 2, 15, 1, Q("1.2 mm")),
    Sketcher.Constraint("DistanceY", 17, 2, 17, 1, Q("0.5 mm")),
    Sketcher.Constraint("DistanceY", 22, 1, 22, 2, Q("0.5 mm")),
    Sketcher.Constraint("DistanceY", 37, 1, 37, 2, Q("0.5 mm")),
    Sketcher.Constraint("DistanceY", 42, 2, 42, 1, Q("0.5 mm")),
    Sketcher.Constraint("DistanceY", 44, 2, 44, 1, Q("1.2 mm")),
    Sketcher.Constraint("DistanceY", 57, 1, 57, 2, Q("1.2 mm")),
    Sketcher.Constraint("DistanceY", 59, 1, 59, 2, Q("0.5 mm")),
    Sketcher.Constraint("DistanceY", 64, 2, 64, 1, Q("0.5 mm")),
    Sketcher.Constraint("DistanceY", 79, 2, 79, 1, Q("0.5 mm")),
    Sketcher.Constraint("DistanceX", 1, 2, -1, 1, Q("3 mm")),
    Sketcher.Constraint("DistanceX", -1, 1, 14, 2, Q("3 mm")),
    Sketcher.Constraint("DistanceY", 17, 2, -1, 1, Q("10 mm")),
    Sketcher.Constraint("DistanceX", -1, 1, 19, 2, Q("10 mm")),
    Sketcher.Constraint("DistanceY", 22, 2, -1, 1, Q("3 mm")),
    Sketcher.Constraint("DistanceY", -1, 1, 35, 2, Q("3 mm")),
    Sketcher.Constraint("DistanceX", -1, 1, 38, 2, Q("10 mm")),
    Sketcher.Constraint("DistanceY", -1, 1, 40, 2, Q("10 mm")),
    Sketcher.Constraint("DistanceX", -1, 1, 43, 2, Q("3 mm")),
    Sketcher.Constraint("DistanceX", 56, 2, -1, 1, Q("3 mm")),
    Sketcher.Constraint("DistanceY", -1, 1, 59, 2, Q("10 mm")),
    Sketcher.Constraint("DistanceX", 61, 2, -1, 1, Q("10 mm")),
    Sketcher.Constraint("DistanceY", -1, 1, 64, 2, Q("3 mm")),
    Sketcher.Constraint("DistanceY", 77, 2, -1, 1, Q("3 mm")),
    Sketcher.Constraint("DistanceX", 80, 2, -1, 1, Q("10 mm")),
    Sketcher.Constraint("DistanceY", 82, 2, -1, 1, Q("10 mm")),
    Sketcher.Constraint("Radius", 7, Q("3.749 mm")),
    Sketcher.Constraint("Radius", 28, Q("3.749 mm")),
    Sketcher.Constraint("Radius", 49, Q("3.749 mm")),
    Sketcher.Constraint("Radius", 70, Q("3.749 mm")),
    Sketcher.Constraint("DistanceX", 7, 2, -1, 1, Q("0.3 mm")),
    Sketcher.Constraint("DistanceX", -1, 1, 9, 2, Q("0.3 mm")),
    Sketcher.Constraint("DistanceY", 28, 2, -1, 1, Q("0.3 mm")),
    Sketcher.Constraint("DistanceY", -1, 1, 30, 2, Q("0.3 mm")),
    Sketcher.Constraint("DistanceX", -1, 1, 49, 2, Q("0.3 mm")),
    Sketcher.Constraint("DistanceX", 51, 2, -1, 1, Q("0.3 mm")),
    Sketcher.Constraint("DistanceY", -1, 1, 70, 2, Q("0.3 mm")),
    Sketcher.Constraint("DistanceY", 72, 2, -1, 1, Q("0.3 mm")),
    Sketcher.Constraint("Radius", 10, Q("3.7511 mm")),
    Sketcher.Constraint("Radius", 31, Q("3.7511 mm")),
    Sketcher.Constraint("Radius", 52, Q("3.7511 mm")),
    Sketcher.Constraint("Radius", 73, Q("3.7511 mm")),
    Sketcher.Constraint("DistanceY", 8, 2, -1, 1, Q("3.45 mm")),
    Sketcher.Constraint("DistanceX", -1, 1, 29, 2, Q("3.45 mm")),
    Sketcher.Constraint("DistanceY", -1, 1, 50, 2, Q("3.45 mm")),
    Sketcher.Constraint("DistanceX", 71, 2, -1, 1, Q("3.45 mm")),
    Sketcher.Constraint("Distance", 5, Q("5.118 mm")),
    Sketcher.Constraint("Distance", 12, Q("5.118 mm")),
    Sketcher.Constraint("Distance", 26, Q("5.118 mm")),
    Sketcher.Constraint("Distance", 33, Q("5.118 mm")),
    Sketcher.Constraint("Distance", 47, Q("5.118 mm")),
    Sketcher.Constraint("Distance", 54, Q("5.118 mm")),
    Sketcher.Constraint("Distance", 68, Q("5.118 mm")),
    Sketcher.Constraint("Distance", 75, Q("5.118 mm")),
    Sketcher.Constraint("DistanceX", 3, 2, 3, 1, Q("2.2994 mm")),
    Sketcher.Constraint("DistanceX", 14, 2, 14, 1, Q("2.2994 mm")),
    Sketcher.Constraint("DistanceX", 45, 1, 45, 2, Q("2.2994 mm")),
    Sketcher.Constraint("DistanceX", 56, 1, 56, 2, Q("2.2994 mm")),
    Sketcher.Constraint("DistanceY", 24, 2, 24, 1, Q("2.2994 mm")),
    Sketcher.Constraint("DistanceY", 35, 2, 35, 1, Q("2.2994 mm")),
    Sketcher.Constraint("DistanceY", 66, 1, 66, 2, Q("2.2994 mm")),
    Sketcher.Constraint("DistanceY", 77, 1, 77, 2, Q("2.2994 mm")),
    Sketcher.Constraint("DistanceX", 6, 3, -1, 1, Q("1.822 mm")),
    Sketcher.Constraint("DistanceY", 7, 3, -1, 1, Q("0.001 mm")),
    Sketcher.Constraint("DistanceY", -1, 1, 10, 3, Q("0.001 mm")),
    Sketcher.Constraint("DistanceX", -1, 1, 11, 3, Q("1.822 mm")),
    Sketcher.Constraint("DistanceY", 27, 3, -1, 1, Q("1.822 mm")),
    Sketcher.Constraint("DistanceX", -1, 1, 28, 3, Q("0.001 mm")),
    Sketcher.Constraint("DistanceX", 31, 3, -1, 1, Q("0.001 mm")),
    Sketcher.Constraint("DistanceY", -1, 1, 32, 3, Q("1.822 mm")),
    Sketcher.Constraint("DistanceX", -1, 1, 48, 3, Q("1.822 mm")),
    Sketcher.Constraint("DistanceY", -1, 1, 49, 3, Q("0.001 mm")),
    Sketcher.Constraint("DistanceY", 52, 3, -1, 1, Q("0.001 mm")),
    Sketcher.Constraint("DistanceX", 53, 3, -1, 1, Q("1.822 mm")),
    Sketcher.Constraint("DistanceY", -1, 1, 69, 3, Q("1.822 mm")),
    Sketcher.Constraint("DistanceX", 70, 3, -1, 1, Q("0.001 mm")),
    Sketcher.Constraint("DistanceX", -1, 1, 73, 3, Q("0.001 mm")),
    Sketcher.Constraint("DistanceY", 74, 3, -1, 1, Q("1.822 mm")),
    Sketcher.Constraint("DistanceY", 4, 1, -1, 1, Q("7.105 mm")),
    Sketcher.Constraint("DistanceY", 5, 2, -1, 1, Q("3.486 mm")),
    Sketcher.Constraint("DistanceY", 6, 1, -1, 1, Q("3.388 mm")),
    Sketcher.Constraint("DistanceY", 7, 2, -1, 1, Q("3.738 mm")),
    Sketcher.Constraint("DistanceY", 10, 2, -1, 1, Q("3.388 mm")),
    Sketcher.Constraint("DistanceY", 11, 1, -1, 1, Q("3.486 mm")),
    Sketcher.Constraint("DistanceY", 12, 2, -1, 1, Q("7.105 mm")),
    Sketcher.Constraint("DistanceX", -1, 1, 25, 1, Q("7.105 mm")),
    Sketcher.Constraint("DistanceX", -1, 1, 26, 2, Q("3.486 mm")),
    Sketcher.Constraint("DistanceX", -1, 1, 27, 1, Q("3.388 mm")),
    Sketcher.Constraint("DistanceX", -1, 1, 28, 2, Q("3.738 mm")),
    Sketcher.Constraint("DistanceX", -1, 1, 31, 2, Q("3.388 mm")),
    Sketcher.Constraint("DistanceX", -1, 1, 32, 1, Q("3.486 mm")),
    Sketcher.Constraint("DistanceX", -1, 1, 33, 2, Q("7.105 mm")),
    Sketcher.Constraint("DistanceY", -1, 1, 46, 1, Q("7.105 mm")),
    Sketcher.Constraint("DistanceY", -1, 1, 47, 2, Q("3.486 mm")),
    Sketcher.Constraint("DistanceY", -1, 1, 48, 1, Q("3.388 mm")),
    Sketcher.Constraint("DistanceY", -1, 1, 49, 2, Q("3.738 mm")),
    Sketcher.Constraint("DistanceY", -1, 1, 52, 2, Q("3.388 mm")),
    Sketcher.Constraint("DistanceY", -1, 1, 53, 1, Q("3.486 mm")),
    Sketcher.Constraint("DistanceY", -1, 1, 54, 2, Q("7.105 mm")),
    Sketcher.Constraint("DistanceX", 67, 1, -1, 1, Q("7.105 mm")),
    Sketcher.Constraint("DistanceX", 68, 2, -1, 1, Q("3.486 mm")),
    Sketcher.Constraint("DistanceX", 69, 1, -1, 1, Q("3.388 mm")),
    Sketcher.Constraint("DistanceX", 70, 2, -1, 1, Q("3.738 mm")),
    Sketcher.Constraint("DistanceX", 73, 2, -1, 1, Q("3.388 mm")),
    Sketcher.Constraint("DistanceX", 74, 1, -1, 1, Q("3.486 mm")),
    Sketcher.Constraint("DistanceX", 75, 2, -1, 1, Q("7.105 mm")),
])
sketch1.setExpression("Constraints[133]", "Params.sketch1_diameter")
sketch1.setExpression("Constraints[134]", "Params.sketch1_radius")
sketch1.setExpression("Constraints[135]", "Params.sketch1_radius2")
sketch1.setExpression("Constraints[136]", "Params.sketch1_radius3")
sketch1.setExpression("Constraints[137]", "Params.sketch1_radius4")
pad1 = body.newObject("PartDesign::Pad", "Pad")
pad1.Profile = sketch1
pad1.setExpression("Length", "Params.pad1_length")

doc.recompute()
